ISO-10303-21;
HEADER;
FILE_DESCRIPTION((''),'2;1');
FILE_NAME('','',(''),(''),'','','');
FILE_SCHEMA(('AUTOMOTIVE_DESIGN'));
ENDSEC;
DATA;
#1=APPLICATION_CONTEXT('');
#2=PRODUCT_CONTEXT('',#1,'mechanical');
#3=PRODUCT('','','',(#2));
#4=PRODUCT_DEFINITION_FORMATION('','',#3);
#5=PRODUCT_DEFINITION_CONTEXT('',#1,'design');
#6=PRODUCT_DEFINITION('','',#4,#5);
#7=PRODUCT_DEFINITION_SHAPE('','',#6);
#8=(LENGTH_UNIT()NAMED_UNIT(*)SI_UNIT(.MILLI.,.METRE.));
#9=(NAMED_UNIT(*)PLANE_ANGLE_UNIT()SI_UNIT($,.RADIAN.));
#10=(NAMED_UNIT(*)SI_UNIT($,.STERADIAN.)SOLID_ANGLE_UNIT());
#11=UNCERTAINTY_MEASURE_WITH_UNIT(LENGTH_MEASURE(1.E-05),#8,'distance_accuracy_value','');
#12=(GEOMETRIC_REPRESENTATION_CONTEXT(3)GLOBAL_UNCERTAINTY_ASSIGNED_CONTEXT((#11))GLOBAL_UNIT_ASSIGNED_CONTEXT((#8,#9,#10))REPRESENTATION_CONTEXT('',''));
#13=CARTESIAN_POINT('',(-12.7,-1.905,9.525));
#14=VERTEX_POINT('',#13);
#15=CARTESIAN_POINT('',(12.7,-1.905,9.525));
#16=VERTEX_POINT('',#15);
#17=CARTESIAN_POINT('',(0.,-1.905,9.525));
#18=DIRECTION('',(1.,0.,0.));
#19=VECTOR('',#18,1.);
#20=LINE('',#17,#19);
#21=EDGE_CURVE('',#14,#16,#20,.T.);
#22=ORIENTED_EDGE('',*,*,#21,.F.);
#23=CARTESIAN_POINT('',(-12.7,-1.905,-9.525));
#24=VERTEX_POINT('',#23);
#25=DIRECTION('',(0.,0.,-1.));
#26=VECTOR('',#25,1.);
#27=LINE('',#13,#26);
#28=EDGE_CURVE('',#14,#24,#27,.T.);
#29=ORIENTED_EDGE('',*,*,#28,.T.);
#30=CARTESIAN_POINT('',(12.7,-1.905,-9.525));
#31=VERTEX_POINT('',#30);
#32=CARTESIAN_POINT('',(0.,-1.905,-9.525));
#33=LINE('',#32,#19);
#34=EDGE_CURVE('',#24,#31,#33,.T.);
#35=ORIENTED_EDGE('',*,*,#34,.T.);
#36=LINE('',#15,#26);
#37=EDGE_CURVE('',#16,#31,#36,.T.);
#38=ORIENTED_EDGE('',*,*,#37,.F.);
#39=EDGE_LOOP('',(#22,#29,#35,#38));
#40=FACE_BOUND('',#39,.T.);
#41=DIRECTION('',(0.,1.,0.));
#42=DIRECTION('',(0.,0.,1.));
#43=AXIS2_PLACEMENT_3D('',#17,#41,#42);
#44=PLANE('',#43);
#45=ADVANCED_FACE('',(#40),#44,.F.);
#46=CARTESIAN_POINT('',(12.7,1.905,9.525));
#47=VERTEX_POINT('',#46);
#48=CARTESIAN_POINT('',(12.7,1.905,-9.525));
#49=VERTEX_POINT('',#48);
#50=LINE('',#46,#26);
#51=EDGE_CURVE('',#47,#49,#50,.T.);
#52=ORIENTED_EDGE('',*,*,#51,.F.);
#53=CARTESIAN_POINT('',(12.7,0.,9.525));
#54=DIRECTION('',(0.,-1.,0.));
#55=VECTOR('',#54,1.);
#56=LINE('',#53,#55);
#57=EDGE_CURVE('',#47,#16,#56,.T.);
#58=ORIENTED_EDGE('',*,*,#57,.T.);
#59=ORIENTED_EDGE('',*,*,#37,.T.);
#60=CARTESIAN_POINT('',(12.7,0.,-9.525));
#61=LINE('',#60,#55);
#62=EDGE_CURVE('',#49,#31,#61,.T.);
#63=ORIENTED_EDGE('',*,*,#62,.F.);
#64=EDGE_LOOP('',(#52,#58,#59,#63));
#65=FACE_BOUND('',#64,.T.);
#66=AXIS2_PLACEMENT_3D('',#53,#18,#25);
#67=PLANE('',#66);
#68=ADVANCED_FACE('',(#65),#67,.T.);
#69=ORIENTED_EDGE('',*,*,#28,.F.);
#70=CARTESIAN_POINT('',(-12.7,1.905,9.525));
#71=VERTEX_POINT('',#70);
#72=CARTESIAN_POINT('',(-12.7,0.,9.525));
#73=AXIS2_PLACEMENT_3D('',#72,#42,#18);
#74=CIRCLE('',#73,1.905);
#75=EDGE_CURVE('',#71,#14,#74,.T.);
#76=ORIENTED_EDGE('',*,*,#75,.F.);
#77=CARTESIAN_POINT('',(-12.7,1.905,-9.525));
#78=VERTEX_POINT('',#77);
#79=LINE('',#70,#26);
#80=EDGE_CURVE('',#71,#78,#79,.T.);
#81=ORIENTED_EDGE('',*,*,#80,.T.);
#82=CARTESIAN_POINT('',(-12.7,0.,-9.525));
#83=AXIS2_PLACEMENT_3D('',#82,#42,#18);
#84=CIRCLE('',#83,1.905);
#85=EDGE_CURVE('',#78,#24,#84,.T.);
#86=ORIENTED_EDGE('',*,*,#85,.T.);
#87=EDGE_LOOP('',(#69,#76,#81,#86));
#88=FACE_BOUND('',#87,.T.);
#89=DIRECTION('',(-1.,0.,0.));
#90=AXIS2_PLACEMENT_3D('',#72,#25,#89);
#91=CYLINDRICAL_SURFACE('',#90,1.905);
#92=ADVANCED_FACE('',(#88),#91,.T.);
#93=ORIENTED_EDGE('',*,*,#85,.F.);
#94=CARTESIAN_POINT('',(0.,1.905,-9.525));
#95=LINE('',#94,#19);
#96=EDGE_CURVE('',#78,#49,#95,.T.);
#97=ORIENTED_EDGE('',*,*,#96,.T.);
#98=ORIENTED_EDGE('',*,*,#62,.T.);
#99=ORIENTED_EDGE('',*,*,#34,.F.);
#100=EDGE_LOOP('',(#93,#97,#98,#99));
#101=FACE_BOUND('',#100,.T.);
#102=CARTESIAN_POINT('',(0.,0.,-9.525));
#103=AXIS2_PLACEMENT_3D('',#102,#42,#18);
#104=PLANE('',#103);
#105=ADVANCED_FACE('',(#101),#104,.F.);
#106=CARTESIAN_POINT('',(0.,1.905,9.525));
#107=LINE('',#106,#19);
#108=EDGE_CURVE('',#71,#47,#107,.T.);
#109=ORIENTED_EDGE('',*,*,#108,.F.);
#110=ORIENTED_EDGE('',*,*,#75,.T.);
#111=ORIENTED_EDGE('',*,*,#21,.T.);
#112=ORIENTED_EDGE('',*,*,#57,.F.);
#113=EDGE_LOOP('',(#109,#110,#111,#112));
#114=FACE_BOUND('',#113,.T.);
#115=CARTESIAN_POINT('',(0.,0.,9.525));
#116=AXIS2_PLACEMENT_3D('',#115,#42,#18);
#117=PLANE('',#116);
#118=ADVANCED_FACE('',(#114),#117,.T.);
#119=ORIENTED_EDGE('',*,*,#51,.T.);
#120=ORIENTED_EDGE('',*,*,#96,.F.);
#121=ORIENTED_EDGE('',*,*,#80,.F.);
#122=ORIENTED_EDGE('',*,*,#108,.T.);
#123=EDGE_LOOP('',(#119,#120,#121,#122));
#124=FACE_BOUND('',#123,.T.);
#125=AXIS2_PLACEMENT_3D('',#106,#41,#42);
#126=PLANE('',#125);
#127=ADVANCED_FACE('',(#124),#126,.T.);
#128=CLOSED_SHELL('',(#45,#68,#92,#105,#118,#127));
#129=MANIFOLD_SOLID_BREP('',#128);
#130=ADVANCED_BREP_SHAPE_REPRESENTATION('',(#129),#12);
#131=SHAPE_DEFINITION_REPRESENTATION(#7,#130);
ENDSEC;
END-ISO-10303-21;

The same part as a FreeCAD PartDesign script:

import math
import FreeCAD as App
import Part
import Sketcher
Q = App.Units.Quantity

doc = App.newDocument("Part")
body = doc.addObject("PartDesign::Body", "Body")

sketch1 = body.newObject("Sketcher::SketchObject", "Sketch")
sketch1.AttachmentSupport = (doc.getObject("XY_Plane"), [""])
sketch1.MapMode = "FlatFace"
sketch1.addGeometry([
    Part.LineSegment(App.Vector(-12.7, -1.905, 0), App.Vector(12.7, -1.905, 0)),
    Part.LineSegment(App.Vector(12.7, -1.905, 0), App.Vector(12.7, 1.905, 0)),
    Part.LineSegment(App.Vector(12.7, 1.905, 0), App.Vector(-12.7, 1.905, 0)),
    Part.ArcOfCircle(Part.Circle(App.Vector(-12.7, 0, 0), App.Vector(0, 0, 1), 1.905), math.radians(90), math.radians(270)),
], False)
sketch1.addConstraint([
    Sketcher.Constraint("Coincident", 0, 2, 1, 1),
    Sketcher.Constraint("Coincident", 1, 2, 2, 1),
    Sketcher.Constraint("Tangent", 2, 2, 3, 1),
    Sketcher.Constraint("Tangent", 3, 2, 0, 1),
    Sketcher.Constraint("Horizontal", 0),
    Sketcher.Constraint("Vertical", 1),
    Sketcher.Constraint("Horizontal", 2),
    Sketcher.Constraint("Symmetric", 0, 2, 2, 2, -1, 1),
    Sketcher.Constraint("DistanceX", 0, 1, 0, 2, Q("1 in")),
    Sketcher.Constraint("Radius", 3, Q("0.075 in")),
])
pad1 = body.newObject("PartDesign::Pad", "Pad")
pad1.Profile = sketch1
pad1.Length = Q("0.75 in")
pad1.Midplane = True

doc.recompute()
